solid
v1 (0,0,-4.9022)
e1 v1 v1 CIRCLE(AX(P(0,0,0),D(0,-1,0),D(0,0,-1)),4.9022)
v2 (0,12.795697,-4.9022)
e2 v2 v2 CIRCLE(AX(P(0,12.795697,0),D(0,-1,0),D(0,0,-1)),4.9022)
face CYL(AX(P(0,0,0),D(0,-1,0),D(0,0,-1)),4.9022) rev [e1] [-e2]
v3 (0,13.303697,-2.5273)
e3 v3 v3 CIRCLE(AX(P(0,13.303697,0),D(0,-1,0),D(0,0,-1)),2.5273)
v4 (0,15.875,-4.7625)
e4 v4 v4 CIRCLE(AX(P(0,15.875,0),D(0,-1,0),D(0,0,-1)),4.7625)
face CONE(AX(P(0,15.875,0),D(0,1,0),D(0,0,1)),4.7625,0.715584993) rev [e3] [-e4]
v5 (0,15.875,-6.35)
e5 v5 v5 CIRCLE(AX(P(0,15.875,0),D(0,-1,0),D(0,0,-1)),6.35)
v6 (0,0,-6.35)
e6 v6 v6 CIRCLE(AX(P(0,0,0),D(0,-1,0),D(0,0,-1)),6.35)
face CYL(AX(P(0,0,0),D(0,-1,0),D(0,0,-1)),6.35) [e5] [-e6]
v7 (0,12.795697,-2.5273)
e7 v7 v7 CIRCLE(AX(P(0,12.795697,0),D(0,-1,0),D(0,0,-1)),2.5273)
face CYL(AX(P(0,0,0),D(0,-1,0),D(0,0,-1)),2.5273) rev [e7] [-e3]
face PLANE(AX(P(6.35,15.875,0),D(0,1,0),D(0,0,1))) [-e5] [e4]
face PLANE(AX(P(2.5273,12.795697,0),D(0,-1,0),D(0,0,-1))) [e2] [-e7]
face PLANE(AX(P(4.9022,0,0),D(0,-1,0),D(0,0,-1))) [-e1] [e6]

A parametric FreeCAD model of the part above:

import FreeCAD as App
import Part
import Sketcher
from FreeCAD import Vector
Q = App.Units.Quantity

doc = App.newDocument("Part")
params = doc.addObject("Spreadsheet::Sheet", "Params")
for row, (alias, value) in enumerate([
    ("sketch1_height", "0.02 in"),
    ("sketch1_width", "0.0625 in"),
    ("sketch1_width2", "0.057 in"),
    ("sketch1_height2", "0.625 in"),
    ("revolution_angle", "360 deg"),
], start=1):
    params.set(f"A{row}", alias)
    params.set(f"B{row}", "=" + value)
    params.setAlias(f"B{row}", alias)

body = doc.addObject("PartDesign::Body", "Body")

sketch1 = doc.addObject("Sketcher::SketchObject", "Sketch")
body.addObject(sketch1)
sketch1.AttachmentSupport = (doc.XY_Plane, [""])
sketch1.MapMode = "FlatFace"
sketch1.addGeometry(Part.LineSegment(Vector(6.3, 0, 0), Vector(6.3, 15.9, 0)), False)
sketch1.addGeometry(Part.LineSegment(Vector(6.3, 15.9, 0), Vector(4.8, 15.9, 0)), False)
sketch1.addGeometry(Part.LineSegment(Vector(4.8, 15.9, 0), Vector(2.5, 13.3, 0)), False)
sketch1.addGeometry(Part.LineSegment(Vector(2.5, 13.3, 0), Vector(2.5, 12.8, 0)), False)
sketch1.addGeometry(Part.LineSegment(Vector(2.5, 12.8, 0), Vector(4.9, 12.8, 0)), False)
sketch1.addGeometry(Part.LineSegment(Vector(4.9, 12.8, 0), Vector(4.9, 0, 0)), False)
sketch1.addGeometry(Part.LineSegment(Vector(4.9, 0, 0), Vector(6.3, 0, 0)), False)
sketch1.addConstraint(Sketcher.Constraint("Coincident", 0, 2, 1, 1))
sketch1.addConstraint(Sketcher.Constraint("Coincident", 1, 2, 2, 1))
sketch1.addConstraint(Sketcher.Constraint("Coincident", 2, 2, 3, 1))
sketch1.addConstraint(Sketcher.Constraint("Coincident", 3, 2, 4, 1))
sketch1.addConstraint(Sketcher.Constraint("Coincident", 4, 2, 5, 1))
sketch1.addConstraint(Sketcher.Constraint("Coincident", 5, 2, 6, 1))
sketch1.addConstraint(Sketcher.Constraint("Coincident", 6, 2, 0, 1))
sketch1.addConstraint(Sketcher.Constraint("Vertical", 0))
sketch1.addConstraint(Sketcher.Constraint("Horizontal", 1))
sketch1.addConstraint(Sketcher.Constraint("Vertical", 3))
sketch1.addConstraint(Sketcher.Constraint("Horizontal", 4))
sketch1.addConstraint(Sketcher.Constraint("Vertical", 5))
sketch1.addConstraint(Sketcher.Constraint("Horizontal", 6))
sketch1.addConstraint(Sketcher.Constraint("PointOnObject", 5, 2, -1))
sketch1.addConstraint(Sketcher.Constraint("Angle", 2, Q("-131 deg")))
sketch1.addConstraint(Sketcher.Constraint("DistanceY", 3, 2, 3, 1, Q("0.02 in")))
sketch1.addConstraint(Sketcher.Constraint("DistanceX", 1, 2, 1, 1, Q("0.0625 in")))
sketch1.addConstraint(Sketcher.Constraint("DistanceX", 6, 1, 6, 2, Q("0.057 in")))
sketch1.addConstraint(Sketcher.Constraint("DistanceY", 0, 1, 0, 2, Q("0.625 in")))
sketch1.addConstraint(Sketcher.Constraint("DistanceX", -1, 1, 0, 2, Q("0.25 in")))
sketch1.addConstraint(Sketcher.Constraint("DistanceX", 4, 1, 4, 2, Q("0.0935 in")))
sketch1.setExpression("Constraints[15]", "Params.sketch1_height")
sketch1.setExpression("Constraints[16]", "Params.sketch1_width")
sketch1.setExpression("Constraints[17]", "Params.sketch1_width2")
sketch1.setExpression("Constraints[18]", "Params.sketch1_height2")
revolution = doc.addObject("PartDesign::Revolution", "Revolution")
body.addObject(revolution)
revolution.Profile = sketch1
revolution.ReferenceAxis = (sketch1, ["V_Axis"])
revolution.setExpression("Angle", "Params.revolution_angle")

doc.recompute()
